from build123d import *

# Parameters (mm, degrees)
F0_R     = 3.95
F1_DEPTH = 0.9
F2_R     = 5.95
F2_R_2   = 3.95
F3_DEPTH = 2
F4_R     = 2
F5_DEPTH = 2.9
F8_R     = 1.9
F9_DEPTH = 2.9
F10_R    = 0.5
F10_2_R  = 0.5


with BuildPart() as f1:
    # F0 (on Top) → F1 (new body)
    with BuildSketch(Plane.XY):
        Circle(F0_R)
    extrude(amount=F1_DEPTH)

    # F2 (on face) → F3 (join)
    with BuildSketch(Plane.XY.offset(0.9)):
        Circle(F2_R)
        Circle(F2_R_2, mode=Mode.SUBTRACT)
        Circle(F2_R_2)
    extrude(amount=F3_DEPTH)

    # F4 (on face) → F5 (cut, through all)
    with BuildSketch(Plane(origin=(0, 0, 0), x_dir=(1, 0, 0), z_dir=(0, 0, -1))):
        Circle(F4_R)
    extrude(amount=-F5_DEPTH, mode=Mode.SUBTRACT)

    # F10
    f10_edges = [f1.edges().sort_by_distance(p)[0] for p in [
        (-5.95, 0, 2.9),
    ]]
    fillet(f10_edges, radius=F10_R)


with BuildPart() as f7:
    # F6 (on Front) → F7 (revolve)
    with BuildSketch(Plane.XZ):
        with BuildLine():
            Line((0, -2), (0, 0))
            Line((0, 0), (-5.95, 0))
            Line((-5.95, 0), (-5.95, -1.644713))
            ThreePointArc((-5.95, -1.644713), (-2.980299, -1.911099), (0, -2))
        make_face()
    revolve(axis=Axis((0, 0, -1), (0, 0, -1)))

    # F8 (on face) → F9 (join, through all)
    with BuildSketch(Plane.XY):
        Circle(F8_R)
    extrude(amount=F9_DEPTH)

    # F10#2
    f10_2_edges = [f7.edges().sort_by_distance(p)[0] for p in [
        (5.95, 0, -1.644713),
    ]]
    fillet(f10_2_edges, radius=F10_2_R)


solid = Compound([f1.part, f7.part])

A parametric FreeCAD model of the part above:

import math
import FreeCAD as App
import Part
import Sketcher
from FreeCAD import Vector
Q = App.Units.Quantity


def edges_at(feature, points):
    """Names of the edges that pass closest to the given points."""
    edges = feature.Shape.Edges
    near = lambda p: min(range(len(edges)), key=lambda i: edges[i].distToShape(Part.Vertex(*p))[0])
    return sorted({f"Edge{near(p) + 1}" for p in points})

doc = App.newDocument("Part")
body = doc.addObject("PartDesign::Body", "Body")

# Sketch on XY plane
sketch1 = body.newObject("Sketcher::SketchObject", "Sketch")
sketch1.AttachmentSupport = (doc.getObject("XY_Plane"), [""])
sketch1.MapMode = "FlatFace"
sketch1.addGeometry(Part.Circle(Vector(0, 0, 0), Vector(0, 0, 1), 4), False)
sketch1.addConstraint([
    Sketcher.Constraint("Coincident", 0, 3, -1, 1),
    Sketcher.Constraint("Diameter", 0, Q("7.9 mm")),
])
pad1 = body.newObject("PartDesign::Pad", "Pad")
pad1.Profile = sketch1
pad1.Length = 0.9

# Sketch on XY plane
sketch2 = body.newObject("Sketcher::SketchObject", "Sketch001")
sketch2.AttachmentSupport = (doc.getObject("XY_Plane"), [""])
sketch2.MapMode = "FlatFace"
sketch2.AttachmentOffset = App.Placement(Vector(0, 0, 0.9), App.Rotation())
sketch2.addGeometry(Part.Circle(Vector(0, 0, 0), Vector(0, 0, 1), 6), False)
sketch2.addConstraint([
    Sketcher.Constraint("Coincident", 0, 3, -1, 1),
    Sketcher.Constraint("Diameter", 0, Q("11.9 mm")),
])
pad2 = body.newObject("PartDesign::Pad", "Pad001")
pad2.Profile = sketch2
pad2.Length = 2

# Sketch on XY plane
sketch3 = body.newObject("Sketcher::SketchObject", "Sketch002")
sketch3.AttachmentSupport = (doc.getObject("XY_Plane"), [""])
sketch3.MapMode = "FlatFace"
sketch3.addGeometry(Part.Circle(Vector(0, 0, 0), Vector(0, 0, 1), 2), False)
sketch3.addConstraint([
    Sketcher.Constraint("Coincident", 0, 3, -1, 1),
    Sketcher.Constraint("Diameter", 0, Q("4 mm")),
])
pocket1 = body.newObject("PartDesign::Pocket", "Pocket")
pocket1.Profile = sketch3
pocket1.Type = "ThroughAll"
pocket1.Reversed = True
doc.recompute()

fillet = body.newObject("PartDesign::Fillet", "Fillet")
fillet.Base = (pocket1, edges_at(pocket1, [(-5.95, 0, 2.9)]))
fillet.Radius = 0.5
body2 = doc.addObject("PartDesign::Body", "Body001")

# Sketch on XZ plane
sketch4 = body2.newObject("Sketcher::SketchObject", "Sketch003")
sketch4.AttachmentSupport = (doc.getObject("XZ_Plane001"), [""])
sketch4.MapMode = "FlatFace"
sketch4.addGeometry([
    Part.LineSegment(Vector(0, -2, 0), Vector(0, 0, 0)),
    Part.LineSegment(Vector(0, 0, 0), Vector(-6, 0, 0)),
    Part.LineSegment(Vector(-6, 0, 0), Vector(-6, -1.6, 0)),
    Part.ArcOfCircle(Part.Circle(Vector(0, 48, 0), Vector(0, 0, 1), 50), math.radians(-96.83), math.radians(-90)),
], False)
sketch4.addConstraint([
    Sketcher.Constraint("Coincident", 0, 2, 1, 1),
    Sketcher.Constraint("Coincident", 1, 2, 2, 1),
    Sketcher.Constraint("Coincident", 2, 2, 3, 1),
    Sketcher.Constraint("Coincident", 3, 2, 0, 1),
    Sketcher.Constraint("Vertical", 0),
    Sketcher.Constraint("Horizontal", 1),
    Sketcher.Constraint("Vertical", 2),
    Sketcher.Constraint("Coincident", 0, 2, -1, 1),
    Sketcher.Constraint("DistanceY", 0, 1, 0, 2, Q("2 mm")),
    Sketcher.Constraint("DistanceX", 1, 2, 1, 1, Q("5.95 mm")),
    Sketcher.Constraint("Radius", 3, Q("50.000162 mm")),
    Sketcher.Constraint("DistanceY", 2, 2, 2, 1, Q("1.644713 mm")),
])
revolution = body2.newObject("PartDesign::Revolution", "Revolution")
revolution.Profile = sketch4
revolution.ReferenceAxis = (sketch4, ["V_Axis"])
revolution.Angle = 360

# Sketch on XY plane
sketch5 = body2.newObject("Sketcher::SketchObject", "Sketch004")
sketch5.AttachmentSupport = (doc.getObject("XY_Plane001"), [""])
sketch5.MapMode = "FlatFace"
sketch5.addGeometry(Part.Circle(Vector(0, 0, 0), Vector(0, 0, 1), 1.9), False)
sketch5.addConstraint([
    Sketcher.Constraint("Coincident", 0, 3, -1, 1),
    Sketcher.Constraint("Diameter", 0, Q("3.8 mm")),
])
pad3 = body2.newObject("PartDesign::Pad", "Pad002")
pad3.Profile = sketch5
pad3.Length = 2.9
doc.recompute()

fillet2 = body2.newObject("PartDesign::Fillet", "Fillet001")
fillet2.Base = (pad3, edges_at(pad3, [(5.95, 0, -1.645)]))
fillet2.Radius = 0.5

doc.recompute()
